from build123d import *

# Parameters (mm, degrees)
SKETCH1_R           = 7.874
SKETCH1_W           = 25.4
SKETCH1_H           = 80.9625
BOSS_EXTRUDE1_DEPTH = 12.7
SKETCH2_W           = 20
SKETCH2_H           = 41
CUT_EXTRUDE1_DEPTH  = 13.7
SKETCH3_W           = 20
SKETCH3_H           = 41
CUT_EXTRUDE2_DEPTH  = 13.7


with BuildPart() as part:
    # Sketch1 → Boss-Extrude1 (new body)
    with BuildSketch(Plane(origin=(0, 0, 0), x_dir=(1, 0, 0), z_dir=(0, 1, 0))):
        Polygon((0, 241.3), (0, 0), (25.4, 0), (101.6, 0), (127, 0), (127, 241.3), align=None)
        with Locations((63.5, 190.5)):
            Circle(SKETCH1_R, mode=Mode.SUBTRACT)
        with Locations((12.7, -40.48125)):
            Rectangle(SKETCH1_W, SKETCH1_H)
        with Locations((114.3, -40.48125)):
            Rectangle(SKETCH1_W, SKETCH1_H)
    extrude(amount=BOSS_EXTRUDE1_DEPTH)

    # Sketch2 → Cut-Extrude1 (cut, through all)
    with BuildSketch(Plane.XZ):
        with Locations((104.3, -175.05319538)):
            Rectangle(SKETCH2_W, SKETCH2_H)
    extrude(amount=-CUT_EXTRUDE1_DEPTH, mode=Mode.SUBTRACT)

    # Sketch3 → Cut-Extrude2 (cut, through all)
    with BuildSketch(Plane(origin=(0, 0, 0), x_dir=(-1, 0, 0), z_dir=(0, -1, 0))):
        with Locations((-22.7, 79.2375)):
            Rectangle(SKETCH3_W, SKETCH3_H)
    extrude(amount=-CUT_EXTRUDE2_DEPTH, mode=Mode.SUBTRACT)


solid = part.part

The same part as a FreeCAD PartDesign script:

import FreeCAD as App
import Part
import Sketcher
from FreeCAD import Vector
Q = App.Units.Quantity

doc = App.newDocument("Part")
body = doc.addObject("PartDesign::Body", "Body")

# Sketch on XZ plane
sketch1 = body.newObject("Sketcher::SketchObject", "Sketch")
sketch1.AttachmentSupport = (doc.getObject("XZ_Plane"), [""])
sketch1.MapMode = "FlatFace"
sketch1.addGeometry([
    Part.LineSegment(Vector(0, -241.3, 0), Vector(0, 80.9625, 0)),  # 0
    Part.LineSegment(Vector(0, 80.9625, 0), Vector(25.4, 80.9625, 0)),  # 1
    Part.LineSegment(Vector(25.4, 80.9625, 0), Vector(25.4, 0, 0)),  # 2
    Part.LineSegment(Vector(25.4, 0, 0), Vector(101.6, 0, 0)),  # 3
    Part.LineSegment(Vector(101.6, 0, 0), Vector(101.6, 80.9625, 0)),  # 4
    Part.LineSegment(Vector(101.6, 80.9625, 0), Vector(127, 80.9625, 0)),  # 5
    Part.LineSegment(Vector(127, 80.9625, 0), Vector(127, -241.3, 0)),  # 6
    Part.LineSegment(Vector(127, -241.3, 0), Vector(0, -241.3, 0)),  # 7
    Part.Circle(Vector(63.5, -190.5, 0), Vector(0, 0, 1), 7.874),  # 8
], False)
sketch1.addConstraint([
    Sketcher.Constraint("Coincident", 0, 2, 1, 1),
    Sketcher.Constraint("Coincident", 1, 2, 2, 1),
    Sketcher.Constraint("Coincident", 2, 2, 3, 1),
    Sketcher.Constraint("Coincident", 3, 2, 4, 1),
    Sketcher.Constraint("Coincident", 4, 2, 5, 1),
    Sketcher.Constraint("Coincident", 5, 2, 6, 1),
    Sketcher.Constraint("Coincident", 6, 2, 7, 1),
    Sketcher.Constraint("Coincident", 7, 2, 0, 1),
    Sketcher.Constraint("Vertical", 0),
    Sketcher.Constraint("Horizontal", 1),
    Sketcher.Constraint("Vertical", 2),
    Sketcher.Constraint("Horizontal", 3),
    Sketcher.Constraint("Vertical", 4),
    Sketcher.Constraint("Horizontal", 5),
    Sketcher.Constraint("Vertical", 6),
    Sketcher.Constraint("Horizontal", 7),
    Sketcher.Constraint("PointOnObject", 0, 2, -2),
    Sketcher.Constraint("PointOnObject", 2, 2, -1),
    Sketcher.Constraint("Horizontal", 1, 2, 4, 2),
    Sketcher.Constraint("Equal", 1, 5),
    Sketcher.Constraint("Diameter", 8, Q("0.62 in")),
    Sketcher.Constraint("DistanceX", 1, 1, 1, 2, Q("1 in")),
    Sketcher.Constraint("DistanceX", 3, 1, 3, 2, Q("3 in")),
    Sketcher.Constraint("DistanceY", 6, 2, 8, 3, Q("2 in")),
    Sketcher.Constraint("DistanceX", -1, 1, 8, 3, Q("2.5 in")),
    Sketcher.Constraint("DistanceY", 8, 3, -1, 1, Q("7.5 in")),
    Sketcher.Constraint("DistanceY", 0, 1, 0, 2, Q("12.6875 in")),
])
pad1 = body.newObject("PartDesign::Pad", "Pad")
pad1.Profile = sketch1
pad1.Length = Q("0.5 in")
pad1.Reversed = True

# Sketch on XZ plane
sketch2 = body.newObject("Sketcher::SketchObject", "Sketch001")
sketch2.AttachmentSupport = (doc.getObject("XZ_Plane"), [""])
sketch2.MapMode = "FlatFace"
sketch2.addGeometry([
    Part.LineSegment(Vector(94.3, -154.553195, 0), Vector(94.3, -195.553195, 0)),
    Part.LineSegment(Vector(94.3, -195.553195, 0), Vector(114.3, -195.553195, 0)),
    Part.LineSegment(Vector(114.3, -195.553195, 0), Vector(114.3, -154.553195, 0)),
    Part.LineSegment(Vector(114.3, -154.553195, 0), Vector(94.3, -154.553195, 0)),
], False)
sketch2.addConstraint([
    Sketcher.Constraint("Coincident", 0, 2, 1, 1),
    Sketcher.Constraint("Coincident", 1, 2, 2, 1),
    Sketcher.Constraint("Coincident", 2, 2, 3, 1),
    Sketcher.Constraint("Coincident", 3, 2, 0, 1),
    Sketcher.Constraint("Vertical", 0),
    Sketcher.Constraint("Horizontal", 1),
    Sketcher.Constraint("Vertical", 2),
    Sketcher.Constraint("Horizontal", 3),
    Sketcher.Constraint("DistanceX", -1, 1, 1, 2, Q("4.5 in")),
    Sketcher.Constraint("DistanceX", 1, 1, 1, 2, 20.0),
    Sketcher.Constraint("DistanceY", 0, 2, 0, 1, 41.0),
    Sketcher.Constraint("DistanceY", 0, 2, -1, 1, 195.553195),
])
pocket1 = body.newObject("PartDesign::Pocket", "Pocket")
pocket1.Profile = sketch2
pocket1.Type = "ThroughAll"

# Sketch on XZ plane
sketch3 = body.newObject("Sketcher::SketchObject", "Sketch002")
sketch3.AttachmentSupport = (doc.getObject("XZ_Plane"), [""])
sketch3.MapMode = "FlatFace"
sketch3.addGeometry([
    Part.LineSegment(Vector(32.7, -99.7375, 0), Vector(32.7, -58.7375, 0)),
    Part.LineSegment(Vector(32.7, -58.7375, 0), Vector(12.7, -58.7375, 0)),
    Part.LineSegment(Vector(12.7, -58.7375, 0), Vector(12.7, -99.7375, 0)),
    Part.LineSegment(Vector(12.7, -99.7375, 0), Vector(32.7, -99.7375, 0)),
], False)
sketch3.addConstraint([
    Sketcher.Constraint("Coincident", 0, 2, 1, 1),
    Sketcher.Constraint("Coincident", 1, 2, 2, 1),
    Sketcher.Constraint("Coincident", 2, 2, 3, 1),
    Sketcher.Constraint("Coincident", 3, 2, 0, 1),
    Sketcher.Constraint("Vertical", 0),
    Sketcher.Constraint("Horizontal", 1),
    Sketcher.Constraint("Vertical", 2),
    Sketcher.Constraint("Horizontal", 3),
    Sketcher.Constraint("DistanceX", -1, 1, 1, 2, Q("0.5 in")),
    Sketcher.Constraint("DistanceY", 0, 2, -1, 1, Q("2.3125 in")),
    Sketcher.Constraint("DistanceX", 1, 2, 1, 1, 20.0),
    Sketcher.Constraint("DistanceY", 0, 1, 0, 2, 41.0),
])
pocket2 = body.newObject("PartDesign::Pocket", "Pocket001")
pocket2.Profile = sketch3
pocket2.Type = "ThroughAll"

doc.recompute()
